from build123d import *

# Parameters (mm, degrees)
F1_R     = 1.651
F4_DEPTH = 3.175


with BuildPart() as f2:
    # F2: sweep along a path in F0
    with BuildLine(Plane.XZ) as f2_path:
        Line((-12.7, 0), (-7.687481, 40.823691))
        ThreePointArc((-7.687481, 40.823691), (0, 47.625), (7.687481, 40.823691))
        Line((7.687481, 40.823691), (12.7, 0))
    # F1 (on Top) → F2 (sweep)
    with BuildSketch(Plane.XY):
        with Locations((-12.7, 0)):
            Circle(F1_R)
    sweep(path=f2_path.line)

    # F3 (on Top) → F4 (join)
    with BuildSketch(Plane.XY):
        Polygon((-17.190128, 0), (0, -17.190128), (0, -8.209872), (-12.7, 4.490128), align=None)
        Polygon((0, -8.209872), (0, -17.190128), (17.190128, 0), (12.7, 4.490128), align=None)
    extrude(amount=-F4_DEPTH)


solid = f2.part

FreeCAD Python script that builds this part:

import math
import FreeCAD as App
import Part
import Sketcher
Q = App.Units.Quantity

doc = App.newDocument("Part")
body = doc.addObject("PartDesign::Body", "Body")

# Sketch on XY plane
sketch1 = body.newObject("Sketcher::SketchObject", "Sketch")
sketch1.AttachmentSupport = (doc.getObject("XY_Plane"), [""])
sketch1.MapMode = "FlatFace"
sketch1.addGeometry(Part.Circle(App.Vector(-12.7, 0, 0), App.Vector(0, 0, 1), 1.7), False)
sketch1.addConstraint([
    Sketcher.Constraint("PointOnObject", 0, 3, -1),
    Sketcher.Constraint("Diameter", 0, Q("0.13 in")),
    Sketcher.Constraint("DistanceX", 0, 3, -1, 1, Q("0.5 in")),
])

# Sketch on XZ plane
sketch2 = body.newObject("Sketcher::SketchObject", "Sketch001")
sketch2.AttachmentSupport = (doc.getObject("XZ_Plane"), [""])
sketch2.MapMode = "FlatFace"
sketch2.addGeometry([
    Part.LineSegment(App.Vector(-13, 0, 0), App.Vector(-8, 41, 0)),
    Part.ArcOfCircle(Part.Circle(App.Vector(0, 40, 0), App.Vector(0, 0, 1), 8), math.radians(7), math.radians(173)),
    Part.LineSegment(App.Vector(8, 41, 0), App.Vector(13, 0, 0)),
], False)
sketch2.addConstraint([
    Sketcher.Constraint("Tangent", 0, 2, 1, 2),
    Sketcher.Constraint("Tangent", 1, 1, 2, 1),
    Sketcher.Constraint("Symmetric", 0, 1, 2, 2, -1, 1),
    Sketcher.Constraint("Symmetric", 0, 2, 1, 1, -2),
    Sketcher.Constraint("Angle", 0, Q("83 deg")),
    Sketcher.Constraint("DistanceX", 0, 1, 2, 2, Q("1 in")),
    Sketcher.Constraint("Radius", 1, Q("7.745213 mm")),
])
doc.recompute()

additivepipe = body.newObject("PartDesign::AdditivePipe", "AdditivePipe")
additivepipe.Profile = sketch1
additivepipe.Spine = (sketch2, ["Edge1", "Edge2", "Edge3"])

# Sketch on XY plane
sketch3 = body.newObject("Sketcher::SketchObject", "Sketch002")
sketch3.AttachmentSupport = (doc.getObject("XY_Plane"), [""])
sketch3.MapMode = "FlatFace"
sketch3.addGeometry([
    Part.LineSegment(App.Vector(-17, 0, 0), App.Vector(0, -17, 0)),  # 0
    Part.LineSegment(App.Vector(0, -17, 0), App.Vector(17, 0, 0)),  # 1
    Part.LineSegment(App.Vector(17, 0, 0), App.Vector(13, 4, 0)),  # 2
    Part.LineSegment(App.Vector(13, 4, 0), App.Vector(0, -8, 0)),  # 3
    Part.LineSegment(App.Vector(0, -8, 0), App.Vector(-13, 4, 0)),  # 4
    Part.LineSegment(App.Vector(-13, 4, 0), App.Vector(-17, 0, 0)),  # 5
], False)
sketch3.addConstraint([
    Sketcher.Constraint("Coincident", 0, 2, 1, 1),
    Sketcher.Constraint("Coincident", 1, 2, 2, 1),
    Sketcher.Constraint("Coincident", 2, 2, 3, 1),
    Sketcher.Constraint("Coincident", 3, 2, 4, 1),
    Sketcher.Constraint("Coincident", 4, 2, 5, 1),
    Sketcher.Constraint("Coincident", 5, 2, 0, 1),
    Sketcher.Constraint("Symmetric", 1, 2, 5, 2, -1, 1),
    Sketcher.Constraint("Symmetric", 2, 2, 4, 2, -2),
    Sketcher.Constraint("PointOnObject", 0, 2, -2),
    Sketcher.Constraint("PointOnObject", 1, 2, -1),
    Sketcher.Constraint("PointOnObject", 3, 2, -2),
    Sketcher.Constraint("Perpendicular", 0, 1),
    Sketcher.Constraint("Perpendicular", 1, 2),
    Sketcher.Constraint("Perpendicular", 2, 3),
    Sketcher.Constraint("DistanceX", 4, 2, 2, 2, Q("1 in")),
    Sketcher.Constraint("Distance", 2, Q("0.25 in")),
])
pad1 = body.newObject("PartDesign::Pad", "Pad")
pad1.Profile = sketch3
pad1.Length = Q("0.125 in")
pad1.Reversed = True

doc.recompute()
